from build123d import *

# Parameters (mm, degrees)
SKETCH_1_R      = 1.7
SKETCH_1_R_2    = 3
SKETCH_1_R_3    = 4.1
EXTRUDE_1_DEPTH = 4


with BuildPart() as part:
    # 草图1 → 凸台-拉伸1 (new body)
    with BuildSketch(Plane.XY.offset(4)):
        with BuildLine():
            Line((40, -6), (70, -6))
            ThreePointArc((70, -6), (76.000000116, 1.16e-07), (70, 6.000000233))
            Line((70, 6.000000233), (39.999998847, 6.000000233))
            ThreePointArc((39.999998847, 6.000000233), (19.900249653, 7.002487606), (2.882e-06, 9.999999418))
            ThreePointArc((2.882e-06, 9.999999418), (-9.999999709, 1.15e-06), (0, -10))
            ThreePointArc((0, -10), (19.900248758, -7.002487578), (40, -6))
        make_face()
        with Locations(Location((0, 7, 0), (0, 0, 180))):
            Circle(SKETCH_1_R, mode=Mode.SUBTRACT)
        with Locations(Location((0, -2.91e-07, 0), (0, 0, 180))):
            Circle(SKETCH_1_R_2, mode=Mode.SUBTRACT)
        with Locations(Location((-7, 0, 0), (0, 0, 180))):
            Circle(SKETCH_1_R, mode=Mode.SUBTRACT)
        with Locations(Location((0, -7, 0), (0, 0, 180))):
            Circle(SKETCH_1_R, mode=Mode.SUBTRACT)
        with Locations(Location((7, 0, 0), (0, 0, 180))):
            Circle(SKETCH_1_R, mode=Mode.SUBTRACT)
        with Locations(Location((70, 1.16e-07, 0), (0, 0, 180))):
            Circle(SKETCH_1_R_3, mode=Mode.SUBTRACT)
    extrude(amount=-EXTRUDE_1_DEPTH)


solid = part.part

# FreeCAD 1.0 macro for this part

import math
import FreeCAD as App
import Part
import Sketcher
Q = App.Units.Quantity

doc = App.newDocument("Part")
body = doc.addObject("PartDesign::Body", "Body")

# Sketch on XY plane
sketch1 = doc.addObject("Sketcher::SketchObject", "Sketch")
body.addObject(sketch1)
sketch1.AttachmentSupport = (doc.XY_Plane, [""])
sketch1.MapMode = "FlatFace"
sketch1.AttachmentOffset = App.Placement(App.Vector(0, 0, 4), App.Rotation())
sketch1.addGeometry([
    Part.LineSegment(App.Vector(40, -6, 0), App.Vector(70, -6, 0)),  # 0
    Part.ArcOfCircle(Part.Circle(App.Vector(70, 0, 0), App.Vector(0, 0, 1), 6), math.radians(-90), math.radians(90)),  # 1
    Part.LineSegment(App.Vector(70, 6, 0), App.Vector(40, 6, 0)),  # 2
    Part.ArcOfCircle(Part.Circle(App.Vector(40, 208, 0), App.Vector(0, 0, 1), 202), math.radians(-101.42), math.radians(-90)),  # 3
    Part.ArcOfCircle(Part.Circle(App.Vector(0, 0, 0), App.Vector(0, 0, 1), 10), math.radians(90), math.radians(270)),  # 4
    Part.ArcOfCircle(Part.Circle(App.Vector(40, -208, 0), App.Vector(0, 0, 1), 202), math.radians(90), math.radians(101.42)),  # 5
    Part.Circle(App.Vector(0, -7, 0), App.Vector(0, 0, 1), 1.7),  # 6
    Part.Circle(App.Vector(0, 0, 0), App.Vector(0, 0, 1), 3),  # 7
    Part.Circle(App.Vector(-7, 0, 0), App.Vector(0, 0, 1), 1.7),  # 8
    Part.Circle(App.Vector(7, 0, 0), App.Vector(0, 0, 1), 1.7),  # 9
    Part.Circle(App.Vector(0, 7, 0), App.Vector(0, 0, 1), 1.7),  # 10
    Part.Circle(App.Vector(70, 0, 0), App.Vector(0, 0, 1), 4.1),  # 11
], False)
sketch1.addConstraint([
    Sketcher.Constraint("Tangent", 0, 2, 1, 1),
    Sketcher.Constraint("Tangent", 1, 2, 2, 1),
    Sketcher.Constraint("Tangent", 2, 2, 3, 2),
    Sketcher.Constraint("Coincident", 3, 1, 4, 1),
    Sketcher.Constraint("Coincident", 4, 2, 5, 2),
    Sketcher.Constraint("Tangent", 5, 1, 0, 1),
    Sketcher.Constraint("Horizontal", 0),
    Sketcher.Constraint("Horizontal", 2),
    Sketcher.Constraint("Coincident", 4, 3, -1, 1),
    Sketcher.Constraint("Coincident", 7, 3, -1, 1),
    Sketcher.Constraint("Coincident", 11, 3, 1, 3),
    Sketcher.Constraint("Equal", 3, 5),
    Sketcher.Constraint("Equal", 6, 8),
    Sketcher.Constraint("Equal", 8, 9),
    Sketcher.Constraint("Equal", 9, 10),
    Sketcher.Constraint("Symmetric", 8, 3, 9, 3, -1, 1),
    Sketcher.Constraint("Symmetric", 6, 3, 10, 3, -1, 1),
    Sketcher.Constraint("Symmetric", 3, 3, 5, 3, -1),
    Sketcher.Constraint("PointOnObject", 6, 3, -2),
    Sketcher.Constraint("PointOnObject", 8, 3, -1),
    Sketcher.Constraint("PointOnObject", 4, 2, -2),
    Sketcher.Constraint("Diameter", 7, Q("6 mm")),
    Sketcher.Constraint("Radius", 1, Q("6 mm")),
    Sketcher.Constraint("Radius", 3, Q("202 mm")),
    Sketcher.Constraint("Radius", 4, Q("10 mm")),
    Sketcher.Constraint("Diameter", 6, Q("3.4 mm")),
    Sketcher.Constraint("Diameter", 11, Q("8.2 mm")),
    Sketcher.Constraint("DistanceX", 0, 1, 0, 2, Q("30 mm")),
    Sketcher.Constraint("DistanceY", 6, 3, -1, 1, Q("7 mm")),
    Sketcher.Constraint("DistanceX", 8, 3, -1, 1, Q("7 mm")),
])
pad1 = doc.addObject("PartDesign::Pad", "Pad")
body.addObject(pad1)
pad1.Profile = sketch1
pad1.Length = 4
pad1.Reversed = True

doc.recompute()
